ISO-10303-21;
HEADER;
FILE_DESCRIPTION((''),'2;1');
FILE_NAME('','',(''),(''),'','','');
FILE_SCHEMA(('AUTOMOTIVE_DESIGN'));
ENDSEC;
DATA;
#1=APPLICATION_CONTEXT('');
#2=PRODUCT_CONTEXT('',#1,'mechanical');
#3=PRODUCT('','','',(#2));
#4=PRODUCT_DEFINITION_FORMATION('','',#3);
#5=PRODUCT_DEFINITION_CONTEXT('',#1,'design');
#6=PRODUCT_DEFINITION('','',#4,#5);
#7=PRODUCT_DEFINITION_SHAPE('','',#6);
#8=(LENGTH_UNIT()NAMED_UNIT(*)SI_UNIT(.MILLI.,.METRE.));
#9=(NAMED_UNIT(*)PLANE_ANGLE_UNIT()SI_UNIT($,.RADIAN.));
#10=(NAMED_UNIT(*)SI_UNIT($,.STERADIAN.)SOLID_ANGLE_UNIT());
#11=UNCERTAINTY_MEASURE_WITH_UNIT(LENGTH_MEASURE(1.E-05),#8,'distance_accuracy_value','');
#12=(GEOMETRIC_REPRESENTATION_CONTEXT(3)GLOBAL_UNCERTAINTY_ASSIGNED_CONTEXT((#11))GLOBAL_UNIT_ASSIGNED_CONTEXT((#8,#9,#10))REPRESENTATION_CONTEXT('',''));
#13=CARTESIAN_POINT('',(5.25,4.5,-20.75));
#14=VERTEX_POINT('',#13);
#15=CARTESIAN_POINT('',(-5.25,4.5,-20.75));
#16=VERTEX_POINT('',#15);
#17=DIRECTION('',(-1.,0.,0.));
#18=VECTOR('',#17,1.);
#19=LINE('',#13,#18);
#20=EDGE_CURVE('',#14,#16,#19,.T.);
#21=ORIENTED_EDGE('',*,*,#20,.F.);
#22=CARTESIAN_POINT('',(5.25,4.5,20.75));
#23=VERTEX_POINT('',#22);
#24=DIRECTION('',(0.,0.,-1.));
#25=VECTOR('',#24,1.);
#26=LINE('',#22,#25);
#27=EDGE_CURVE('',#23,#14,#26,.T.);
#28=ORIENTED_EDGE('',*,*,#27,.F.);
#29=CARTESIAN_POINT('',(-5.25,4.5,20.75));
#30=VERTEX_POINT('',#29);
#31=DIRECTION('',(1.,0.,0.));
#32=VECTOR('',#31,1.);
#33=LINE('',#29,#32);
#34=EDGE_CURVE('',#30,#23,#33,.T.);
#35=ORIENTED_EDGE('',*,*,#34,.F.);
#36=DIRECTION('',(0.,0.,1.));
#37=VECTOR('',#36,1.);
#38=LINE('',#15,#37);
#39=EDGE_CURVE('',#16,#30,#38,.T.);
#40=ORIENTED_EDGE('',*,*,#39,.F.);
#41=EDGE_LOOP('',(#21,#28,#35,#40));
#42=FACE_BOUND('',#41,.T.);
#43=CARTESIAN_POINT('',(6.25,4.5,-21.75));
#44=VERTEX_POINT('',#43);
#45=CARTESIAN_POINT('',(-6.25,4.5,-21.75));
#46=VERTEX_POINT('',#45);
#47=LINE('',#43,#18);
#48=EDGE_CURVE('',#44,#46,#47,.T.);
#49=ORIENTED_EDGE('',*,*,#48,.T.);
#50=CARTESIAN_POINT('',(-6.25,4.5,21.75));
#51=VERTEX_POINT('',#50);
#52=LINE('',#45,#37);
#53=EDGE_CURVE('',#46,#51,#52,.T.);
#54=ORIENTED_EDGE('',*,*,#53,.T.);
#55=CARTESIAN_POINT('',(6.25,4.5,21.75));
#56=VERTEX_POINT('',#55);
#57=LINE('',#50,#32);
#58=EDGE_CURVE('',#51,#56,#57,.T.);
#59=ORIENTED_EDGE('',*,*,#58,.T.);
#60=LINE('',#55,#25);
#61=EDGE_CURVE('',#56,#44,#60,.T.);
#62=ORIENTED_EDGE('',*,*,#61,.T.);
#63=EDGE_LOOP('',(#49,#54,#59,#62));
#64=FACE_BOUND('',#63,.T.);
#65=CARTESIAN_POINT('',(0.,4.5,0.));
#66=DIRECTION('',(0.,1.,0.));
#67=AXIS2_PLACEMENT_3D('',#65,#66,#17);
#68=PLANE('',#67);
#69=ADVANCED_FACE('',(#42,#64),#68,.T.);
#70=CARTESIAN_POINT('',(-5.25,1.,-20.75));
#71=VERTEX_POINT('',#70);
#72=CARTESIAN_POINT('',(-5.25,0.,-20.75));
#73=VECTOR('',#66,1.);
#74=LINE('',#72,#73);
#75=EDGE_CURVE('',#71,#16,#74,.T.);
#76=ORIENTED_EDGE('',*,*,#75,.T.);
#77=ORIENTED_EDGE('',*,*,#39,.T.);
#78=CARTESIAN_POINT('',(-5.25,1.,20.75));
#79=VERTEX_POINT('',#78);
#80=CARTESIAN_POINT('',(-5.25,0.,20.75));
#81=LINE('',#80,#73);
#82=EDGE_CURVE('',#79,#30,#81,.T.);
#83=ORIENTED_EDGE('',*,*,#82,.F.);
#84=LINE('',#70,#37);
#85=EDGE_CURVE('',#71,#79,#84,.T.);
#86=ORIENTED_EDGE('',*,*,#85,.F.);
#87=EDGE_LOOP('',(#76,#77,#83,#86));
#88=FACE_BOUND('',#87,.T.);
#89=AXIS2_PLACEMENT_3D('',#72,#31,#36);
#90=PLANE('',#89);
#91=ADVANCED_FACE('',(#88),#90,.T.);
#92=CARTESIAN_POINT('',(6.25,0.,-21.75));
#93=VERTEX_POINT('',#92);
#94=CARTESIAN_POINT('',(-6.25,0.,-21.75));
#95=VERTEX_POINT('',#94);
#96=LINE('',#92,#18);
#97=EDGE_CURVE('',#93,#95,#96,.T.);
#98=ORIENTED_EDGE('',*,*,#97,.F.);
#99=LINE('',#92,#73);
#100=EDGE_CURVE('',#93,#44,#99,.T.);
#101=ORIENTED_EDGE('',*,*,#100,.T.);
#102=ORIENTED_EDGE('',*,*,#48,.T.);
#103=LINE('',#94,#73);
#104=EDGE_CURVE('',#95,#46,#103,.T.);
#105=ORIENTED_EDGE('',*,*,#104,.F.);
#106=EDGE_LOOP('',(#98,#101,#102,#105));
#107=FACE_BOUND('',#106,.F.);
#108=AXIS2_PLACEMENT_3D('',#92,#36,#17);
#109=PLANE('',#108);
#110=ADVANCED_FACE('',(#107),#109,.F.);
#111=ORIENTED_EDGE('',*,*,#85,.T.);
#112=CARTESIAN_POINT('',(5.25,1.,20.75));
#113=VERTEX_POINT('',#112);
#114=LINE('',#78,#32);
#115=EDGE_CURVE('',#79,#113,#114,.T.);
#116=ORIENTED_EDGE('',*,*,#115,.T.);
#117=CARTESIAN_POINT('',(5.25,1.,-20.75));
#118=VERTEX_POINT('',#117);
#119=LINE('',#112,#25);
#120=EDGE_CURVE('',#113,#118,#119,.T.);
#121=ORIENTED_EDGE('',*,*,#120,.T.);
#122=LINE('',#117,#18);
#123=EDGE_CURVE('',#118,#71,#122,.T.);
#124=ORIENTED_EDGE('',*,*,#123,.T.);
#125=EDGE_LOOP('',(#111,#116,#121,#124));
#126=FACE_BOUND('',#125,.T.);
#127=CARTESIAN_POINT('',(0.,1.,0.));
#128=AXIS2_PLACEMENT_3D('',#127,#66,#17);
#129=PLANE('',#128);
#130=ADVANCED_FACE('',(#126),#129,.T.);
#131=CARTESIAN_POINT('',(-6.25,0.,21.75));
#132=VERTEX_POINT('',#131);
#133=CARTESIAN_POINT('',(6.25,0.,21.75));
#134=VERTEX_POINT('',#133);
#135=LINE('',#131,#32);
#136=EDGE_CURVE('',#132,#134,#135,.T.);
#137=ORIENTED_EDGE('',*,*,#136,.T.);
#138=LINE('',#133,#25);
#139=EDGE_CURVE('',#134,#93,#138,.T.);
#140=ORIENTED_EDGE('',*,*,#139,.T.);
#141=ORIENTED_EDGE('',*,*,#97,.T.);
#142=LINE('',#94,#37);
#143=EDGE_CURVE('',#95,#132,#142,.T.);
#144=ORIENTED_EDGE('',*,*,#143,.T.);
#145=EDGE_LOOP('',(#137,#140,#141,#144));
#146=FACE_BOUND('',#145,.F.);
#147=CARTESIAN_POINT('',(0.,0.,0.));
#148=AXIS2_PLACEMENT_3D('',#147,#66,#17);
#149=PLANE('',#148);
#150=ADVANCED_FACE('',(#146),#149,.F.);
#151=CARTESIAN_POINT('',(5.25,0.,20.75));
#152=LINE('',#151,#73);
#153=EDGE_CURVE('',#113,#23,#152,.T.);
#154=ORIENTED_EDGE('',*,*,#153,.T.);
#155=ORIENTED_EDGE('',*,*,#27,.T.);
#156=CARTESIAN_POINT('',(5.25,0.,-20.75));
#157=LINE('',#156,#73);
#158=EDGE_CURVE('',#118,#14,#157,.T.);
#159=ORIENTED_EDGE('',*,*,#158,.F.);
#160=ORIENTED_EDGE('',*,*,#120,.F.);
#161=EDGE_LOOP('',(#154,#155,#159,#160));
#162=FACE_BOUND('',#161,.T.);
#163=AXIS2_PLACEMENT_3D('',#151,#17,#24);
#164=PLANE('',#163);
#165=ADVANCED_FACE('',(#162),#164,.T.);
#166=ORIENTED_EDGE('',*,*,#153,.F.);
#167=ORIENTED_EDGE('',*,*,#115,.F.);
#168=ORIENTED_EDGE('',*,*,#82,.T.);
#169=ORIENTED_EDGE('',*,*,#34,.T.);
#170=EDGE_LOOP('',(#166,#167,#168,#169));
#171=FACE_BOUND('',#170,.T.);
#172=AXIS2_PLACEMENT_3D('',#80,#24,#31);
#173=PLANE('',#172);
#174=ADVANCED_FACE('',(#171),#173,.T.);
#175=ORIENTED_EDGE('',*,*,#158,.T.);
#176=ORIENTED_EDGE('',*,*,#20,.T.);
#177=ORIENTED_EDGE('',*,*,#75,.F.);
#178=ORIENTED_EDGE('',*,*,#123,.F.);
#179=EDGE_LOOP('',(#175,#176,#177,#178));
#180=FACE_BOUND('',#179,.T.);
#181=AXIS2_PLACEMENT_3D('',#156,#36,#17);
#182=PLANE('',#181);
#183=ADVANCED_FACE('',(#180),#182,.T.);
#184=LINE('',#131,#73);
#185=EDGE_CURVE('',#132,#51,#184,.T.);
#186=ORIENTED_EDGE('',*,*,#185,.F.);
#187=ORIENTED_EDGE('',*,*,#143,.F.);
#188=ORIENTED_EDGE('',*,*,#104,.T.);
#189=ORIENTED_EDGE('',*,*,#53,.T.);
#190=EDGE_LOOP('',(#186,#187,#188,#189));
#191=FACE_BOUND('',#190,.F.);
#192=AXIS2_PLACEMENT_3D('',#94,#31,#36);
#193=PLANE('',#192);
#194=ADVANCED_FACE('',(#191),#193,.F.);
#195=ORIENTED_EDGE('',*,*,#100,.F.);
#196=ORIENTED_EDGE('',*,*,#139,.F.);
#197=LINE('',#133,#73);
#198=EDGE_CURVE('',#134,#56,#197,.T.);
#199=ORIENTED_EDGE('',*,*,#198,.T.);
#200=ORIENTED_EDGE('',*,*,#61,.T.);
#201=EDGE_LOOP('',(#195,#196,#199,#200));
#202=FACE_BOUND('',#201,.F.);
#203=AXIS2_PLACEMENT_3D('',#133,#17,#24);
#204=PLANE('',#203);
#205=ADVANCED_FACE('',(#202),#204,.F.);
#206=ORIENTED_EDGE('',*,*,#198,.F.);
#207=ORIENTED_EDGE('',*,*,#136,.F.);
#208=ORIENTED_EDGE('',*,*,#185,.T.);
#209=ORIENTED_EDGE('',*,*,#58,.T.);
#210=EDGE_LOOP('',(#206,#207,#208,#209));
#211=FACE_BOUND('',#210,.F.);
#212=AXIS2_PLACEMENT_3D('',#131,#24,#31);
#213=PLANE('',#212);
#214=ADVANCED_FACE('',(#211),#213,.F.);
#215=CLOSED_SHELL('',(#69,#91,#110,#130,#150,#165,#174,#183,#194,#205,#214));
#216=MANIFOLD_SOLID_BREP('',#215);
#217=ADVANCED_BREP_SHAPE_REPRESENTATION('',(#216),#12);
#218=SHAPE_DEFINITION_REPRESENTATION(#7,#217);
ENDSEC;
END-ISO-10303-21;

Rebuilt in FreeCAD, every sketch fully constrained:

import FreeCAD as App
import Part
import Sketcher
from FreeCAD import Vector
Q = App.Units.Quantity


def add_polygon(sketch, points):
    """Adds a closed chain of lines whose ends are joined by coincident constraints."""
    first, n = sketch.GeometryCount, len(points)
    for a, b in zip(points, points[1:] + points[:1]):
        sketch.addGeometry(Part.LineSegment(App.Vector(*a, 0), App.Vector(*b, 0)), False)
    for i in range(n):
        sketch.addConstraint(Sketcher.Constraint("Coincident", first + i, 2, first + (i + 1) % n, 1))

doc = App.newDocument("Part")
params = doc.addObject("Spreadsheet::Sheet", "Params")
for row, (alias, value) in enumerate([
    ("sketch1_width", "12.5 mm"),
    ("sketch1_width2", "10.5 mm"),
    ("sketch1_height", "43.5 mm"),
    ("sketch1_height2", "41.5 mm"),
    ("pad1_length", "4.5 mm"),
    ("sketch2_width", "10.5 mm"),
    ("sketch2_height", "41.5 mm"),
    ("pad2_length", "1 mm"),
], start=1):
    params.set(f"A{row}", alias)
    params.set(f"B{row}", "=" + value)
    params.setAlias(f"B{row}", alias)

body = doc.addObject("PartDesign::Body", "Body")

sketch1 = body.newObject("Sketcher::SketchObject", "Sketch")
sketch1.AttachmentSupport = (doc.getObject("XZ_Plane"), [""])
sketch1.MapMode = "FlatFace"
add_polygon(sketch1, [(-6.25, -21.75), (-6.25, 21.75), (6.25, 21.75), (6.25, -21.75)])
add_polygon(sketch1, [(-5.25, -20.75), (5.25, -20.75), (5.25, 20.75), (-5.25, 20.75)])
sketch1.addConstraint([
    Sketcher.Constraint("Vertical", 0),
    Sketcher.Constraint("Horizontal", 1),
    Sketcher.Constraint("Vertical", 2),
    Sketcher.Constraint("Horizontal", 3),
    Sketcher.Constraint("Horizontal", 4),
    Sketcher.Constraint("Vertical", 5),
    Sketcher.Constraint("Horizontal", 6),
    Sketcher.Constraint("Vertical", 7),
    Sketcher.Constraint("Symmetric", 0, 2, 2, 2, -1, 1),
    Sketcher.Constraint("Symmetric", 4, 2, 6, 2, -1, 1),
    Sketcher.Constraint("DistanceX", 1, 1, 1, 2, Q("12.5 mm")),
    Sketcher.Constraint("DistanceX", 4, 1, 4, 2, Q("10.5 mm")),
    Sketcher.Constraint("DistanceY", 0, 1, 0, 2, Q("43.5 mm")),
    Sketcher.Constraint("DistanceY", 5, 1, 5, 2, Q("41.5 mm")),
])
sketch1.setExpression("Constraints[18]", "Params.sketch1_width")
sketch1.setExpression("Constraints[19]", "Params.sketch1_width2")
sketch1.setExpression("Constraints[20]", "Params.sketch1_height")
sketch1.setExpression("Constraints[21]", "Params.sketch1_height2")
pad1 = body.newObject("PartDesign::Pad", "Pad")
pad1.Profile = sketch1
pad1.setExpression("Length", "Params.pad1_length")
pad1.Reversed = True

sketch2 = body.newObject("Sketcher::SketchObject", "Sketch001")
sketch2.AttachmentSupport = (doc.getObject("XZ_Plane"), [""])
sketch2.MapMode = "FlatFace"
add_polygon(sketch2, [(5.25, 20.75), (5.25, -20.75), (-5.25, -20.75), (-5.25, 20.75)])
sketch2.addConstraint([
    Sketcher.Constraint("Vertical", 0),
    Sketcher.Constraint("Horizontal", 1),
    Sketcher.Constraint("Vertical", 2),
    Sketcher.Constraint("Horizontal", 3),
    Sketcher.Constraint("Symmetric", 0, 2, 2, 2, -1, 1),
    Sketcher.Constraint("DistanceX", 1, 2, 1, 1, Q("10.5 mm")),
    Sketcher.Constraint("DistanceY", 0, 2, 0, 1, Q("41.5 mm")),
])
sketch2.setExpression("Constraints[9]", "Params.sketch2_width")
sketch2.setExpression("Constraints[10]", "Params.sketch2_height")
pad2 = body.newObject("PartDesign::Pad", "Pad001")
pad2.Profile = sketch2
pad2.setExpression("Length", "Params.pad2_length")
pad2.Reversed = True

doc.recompute()
